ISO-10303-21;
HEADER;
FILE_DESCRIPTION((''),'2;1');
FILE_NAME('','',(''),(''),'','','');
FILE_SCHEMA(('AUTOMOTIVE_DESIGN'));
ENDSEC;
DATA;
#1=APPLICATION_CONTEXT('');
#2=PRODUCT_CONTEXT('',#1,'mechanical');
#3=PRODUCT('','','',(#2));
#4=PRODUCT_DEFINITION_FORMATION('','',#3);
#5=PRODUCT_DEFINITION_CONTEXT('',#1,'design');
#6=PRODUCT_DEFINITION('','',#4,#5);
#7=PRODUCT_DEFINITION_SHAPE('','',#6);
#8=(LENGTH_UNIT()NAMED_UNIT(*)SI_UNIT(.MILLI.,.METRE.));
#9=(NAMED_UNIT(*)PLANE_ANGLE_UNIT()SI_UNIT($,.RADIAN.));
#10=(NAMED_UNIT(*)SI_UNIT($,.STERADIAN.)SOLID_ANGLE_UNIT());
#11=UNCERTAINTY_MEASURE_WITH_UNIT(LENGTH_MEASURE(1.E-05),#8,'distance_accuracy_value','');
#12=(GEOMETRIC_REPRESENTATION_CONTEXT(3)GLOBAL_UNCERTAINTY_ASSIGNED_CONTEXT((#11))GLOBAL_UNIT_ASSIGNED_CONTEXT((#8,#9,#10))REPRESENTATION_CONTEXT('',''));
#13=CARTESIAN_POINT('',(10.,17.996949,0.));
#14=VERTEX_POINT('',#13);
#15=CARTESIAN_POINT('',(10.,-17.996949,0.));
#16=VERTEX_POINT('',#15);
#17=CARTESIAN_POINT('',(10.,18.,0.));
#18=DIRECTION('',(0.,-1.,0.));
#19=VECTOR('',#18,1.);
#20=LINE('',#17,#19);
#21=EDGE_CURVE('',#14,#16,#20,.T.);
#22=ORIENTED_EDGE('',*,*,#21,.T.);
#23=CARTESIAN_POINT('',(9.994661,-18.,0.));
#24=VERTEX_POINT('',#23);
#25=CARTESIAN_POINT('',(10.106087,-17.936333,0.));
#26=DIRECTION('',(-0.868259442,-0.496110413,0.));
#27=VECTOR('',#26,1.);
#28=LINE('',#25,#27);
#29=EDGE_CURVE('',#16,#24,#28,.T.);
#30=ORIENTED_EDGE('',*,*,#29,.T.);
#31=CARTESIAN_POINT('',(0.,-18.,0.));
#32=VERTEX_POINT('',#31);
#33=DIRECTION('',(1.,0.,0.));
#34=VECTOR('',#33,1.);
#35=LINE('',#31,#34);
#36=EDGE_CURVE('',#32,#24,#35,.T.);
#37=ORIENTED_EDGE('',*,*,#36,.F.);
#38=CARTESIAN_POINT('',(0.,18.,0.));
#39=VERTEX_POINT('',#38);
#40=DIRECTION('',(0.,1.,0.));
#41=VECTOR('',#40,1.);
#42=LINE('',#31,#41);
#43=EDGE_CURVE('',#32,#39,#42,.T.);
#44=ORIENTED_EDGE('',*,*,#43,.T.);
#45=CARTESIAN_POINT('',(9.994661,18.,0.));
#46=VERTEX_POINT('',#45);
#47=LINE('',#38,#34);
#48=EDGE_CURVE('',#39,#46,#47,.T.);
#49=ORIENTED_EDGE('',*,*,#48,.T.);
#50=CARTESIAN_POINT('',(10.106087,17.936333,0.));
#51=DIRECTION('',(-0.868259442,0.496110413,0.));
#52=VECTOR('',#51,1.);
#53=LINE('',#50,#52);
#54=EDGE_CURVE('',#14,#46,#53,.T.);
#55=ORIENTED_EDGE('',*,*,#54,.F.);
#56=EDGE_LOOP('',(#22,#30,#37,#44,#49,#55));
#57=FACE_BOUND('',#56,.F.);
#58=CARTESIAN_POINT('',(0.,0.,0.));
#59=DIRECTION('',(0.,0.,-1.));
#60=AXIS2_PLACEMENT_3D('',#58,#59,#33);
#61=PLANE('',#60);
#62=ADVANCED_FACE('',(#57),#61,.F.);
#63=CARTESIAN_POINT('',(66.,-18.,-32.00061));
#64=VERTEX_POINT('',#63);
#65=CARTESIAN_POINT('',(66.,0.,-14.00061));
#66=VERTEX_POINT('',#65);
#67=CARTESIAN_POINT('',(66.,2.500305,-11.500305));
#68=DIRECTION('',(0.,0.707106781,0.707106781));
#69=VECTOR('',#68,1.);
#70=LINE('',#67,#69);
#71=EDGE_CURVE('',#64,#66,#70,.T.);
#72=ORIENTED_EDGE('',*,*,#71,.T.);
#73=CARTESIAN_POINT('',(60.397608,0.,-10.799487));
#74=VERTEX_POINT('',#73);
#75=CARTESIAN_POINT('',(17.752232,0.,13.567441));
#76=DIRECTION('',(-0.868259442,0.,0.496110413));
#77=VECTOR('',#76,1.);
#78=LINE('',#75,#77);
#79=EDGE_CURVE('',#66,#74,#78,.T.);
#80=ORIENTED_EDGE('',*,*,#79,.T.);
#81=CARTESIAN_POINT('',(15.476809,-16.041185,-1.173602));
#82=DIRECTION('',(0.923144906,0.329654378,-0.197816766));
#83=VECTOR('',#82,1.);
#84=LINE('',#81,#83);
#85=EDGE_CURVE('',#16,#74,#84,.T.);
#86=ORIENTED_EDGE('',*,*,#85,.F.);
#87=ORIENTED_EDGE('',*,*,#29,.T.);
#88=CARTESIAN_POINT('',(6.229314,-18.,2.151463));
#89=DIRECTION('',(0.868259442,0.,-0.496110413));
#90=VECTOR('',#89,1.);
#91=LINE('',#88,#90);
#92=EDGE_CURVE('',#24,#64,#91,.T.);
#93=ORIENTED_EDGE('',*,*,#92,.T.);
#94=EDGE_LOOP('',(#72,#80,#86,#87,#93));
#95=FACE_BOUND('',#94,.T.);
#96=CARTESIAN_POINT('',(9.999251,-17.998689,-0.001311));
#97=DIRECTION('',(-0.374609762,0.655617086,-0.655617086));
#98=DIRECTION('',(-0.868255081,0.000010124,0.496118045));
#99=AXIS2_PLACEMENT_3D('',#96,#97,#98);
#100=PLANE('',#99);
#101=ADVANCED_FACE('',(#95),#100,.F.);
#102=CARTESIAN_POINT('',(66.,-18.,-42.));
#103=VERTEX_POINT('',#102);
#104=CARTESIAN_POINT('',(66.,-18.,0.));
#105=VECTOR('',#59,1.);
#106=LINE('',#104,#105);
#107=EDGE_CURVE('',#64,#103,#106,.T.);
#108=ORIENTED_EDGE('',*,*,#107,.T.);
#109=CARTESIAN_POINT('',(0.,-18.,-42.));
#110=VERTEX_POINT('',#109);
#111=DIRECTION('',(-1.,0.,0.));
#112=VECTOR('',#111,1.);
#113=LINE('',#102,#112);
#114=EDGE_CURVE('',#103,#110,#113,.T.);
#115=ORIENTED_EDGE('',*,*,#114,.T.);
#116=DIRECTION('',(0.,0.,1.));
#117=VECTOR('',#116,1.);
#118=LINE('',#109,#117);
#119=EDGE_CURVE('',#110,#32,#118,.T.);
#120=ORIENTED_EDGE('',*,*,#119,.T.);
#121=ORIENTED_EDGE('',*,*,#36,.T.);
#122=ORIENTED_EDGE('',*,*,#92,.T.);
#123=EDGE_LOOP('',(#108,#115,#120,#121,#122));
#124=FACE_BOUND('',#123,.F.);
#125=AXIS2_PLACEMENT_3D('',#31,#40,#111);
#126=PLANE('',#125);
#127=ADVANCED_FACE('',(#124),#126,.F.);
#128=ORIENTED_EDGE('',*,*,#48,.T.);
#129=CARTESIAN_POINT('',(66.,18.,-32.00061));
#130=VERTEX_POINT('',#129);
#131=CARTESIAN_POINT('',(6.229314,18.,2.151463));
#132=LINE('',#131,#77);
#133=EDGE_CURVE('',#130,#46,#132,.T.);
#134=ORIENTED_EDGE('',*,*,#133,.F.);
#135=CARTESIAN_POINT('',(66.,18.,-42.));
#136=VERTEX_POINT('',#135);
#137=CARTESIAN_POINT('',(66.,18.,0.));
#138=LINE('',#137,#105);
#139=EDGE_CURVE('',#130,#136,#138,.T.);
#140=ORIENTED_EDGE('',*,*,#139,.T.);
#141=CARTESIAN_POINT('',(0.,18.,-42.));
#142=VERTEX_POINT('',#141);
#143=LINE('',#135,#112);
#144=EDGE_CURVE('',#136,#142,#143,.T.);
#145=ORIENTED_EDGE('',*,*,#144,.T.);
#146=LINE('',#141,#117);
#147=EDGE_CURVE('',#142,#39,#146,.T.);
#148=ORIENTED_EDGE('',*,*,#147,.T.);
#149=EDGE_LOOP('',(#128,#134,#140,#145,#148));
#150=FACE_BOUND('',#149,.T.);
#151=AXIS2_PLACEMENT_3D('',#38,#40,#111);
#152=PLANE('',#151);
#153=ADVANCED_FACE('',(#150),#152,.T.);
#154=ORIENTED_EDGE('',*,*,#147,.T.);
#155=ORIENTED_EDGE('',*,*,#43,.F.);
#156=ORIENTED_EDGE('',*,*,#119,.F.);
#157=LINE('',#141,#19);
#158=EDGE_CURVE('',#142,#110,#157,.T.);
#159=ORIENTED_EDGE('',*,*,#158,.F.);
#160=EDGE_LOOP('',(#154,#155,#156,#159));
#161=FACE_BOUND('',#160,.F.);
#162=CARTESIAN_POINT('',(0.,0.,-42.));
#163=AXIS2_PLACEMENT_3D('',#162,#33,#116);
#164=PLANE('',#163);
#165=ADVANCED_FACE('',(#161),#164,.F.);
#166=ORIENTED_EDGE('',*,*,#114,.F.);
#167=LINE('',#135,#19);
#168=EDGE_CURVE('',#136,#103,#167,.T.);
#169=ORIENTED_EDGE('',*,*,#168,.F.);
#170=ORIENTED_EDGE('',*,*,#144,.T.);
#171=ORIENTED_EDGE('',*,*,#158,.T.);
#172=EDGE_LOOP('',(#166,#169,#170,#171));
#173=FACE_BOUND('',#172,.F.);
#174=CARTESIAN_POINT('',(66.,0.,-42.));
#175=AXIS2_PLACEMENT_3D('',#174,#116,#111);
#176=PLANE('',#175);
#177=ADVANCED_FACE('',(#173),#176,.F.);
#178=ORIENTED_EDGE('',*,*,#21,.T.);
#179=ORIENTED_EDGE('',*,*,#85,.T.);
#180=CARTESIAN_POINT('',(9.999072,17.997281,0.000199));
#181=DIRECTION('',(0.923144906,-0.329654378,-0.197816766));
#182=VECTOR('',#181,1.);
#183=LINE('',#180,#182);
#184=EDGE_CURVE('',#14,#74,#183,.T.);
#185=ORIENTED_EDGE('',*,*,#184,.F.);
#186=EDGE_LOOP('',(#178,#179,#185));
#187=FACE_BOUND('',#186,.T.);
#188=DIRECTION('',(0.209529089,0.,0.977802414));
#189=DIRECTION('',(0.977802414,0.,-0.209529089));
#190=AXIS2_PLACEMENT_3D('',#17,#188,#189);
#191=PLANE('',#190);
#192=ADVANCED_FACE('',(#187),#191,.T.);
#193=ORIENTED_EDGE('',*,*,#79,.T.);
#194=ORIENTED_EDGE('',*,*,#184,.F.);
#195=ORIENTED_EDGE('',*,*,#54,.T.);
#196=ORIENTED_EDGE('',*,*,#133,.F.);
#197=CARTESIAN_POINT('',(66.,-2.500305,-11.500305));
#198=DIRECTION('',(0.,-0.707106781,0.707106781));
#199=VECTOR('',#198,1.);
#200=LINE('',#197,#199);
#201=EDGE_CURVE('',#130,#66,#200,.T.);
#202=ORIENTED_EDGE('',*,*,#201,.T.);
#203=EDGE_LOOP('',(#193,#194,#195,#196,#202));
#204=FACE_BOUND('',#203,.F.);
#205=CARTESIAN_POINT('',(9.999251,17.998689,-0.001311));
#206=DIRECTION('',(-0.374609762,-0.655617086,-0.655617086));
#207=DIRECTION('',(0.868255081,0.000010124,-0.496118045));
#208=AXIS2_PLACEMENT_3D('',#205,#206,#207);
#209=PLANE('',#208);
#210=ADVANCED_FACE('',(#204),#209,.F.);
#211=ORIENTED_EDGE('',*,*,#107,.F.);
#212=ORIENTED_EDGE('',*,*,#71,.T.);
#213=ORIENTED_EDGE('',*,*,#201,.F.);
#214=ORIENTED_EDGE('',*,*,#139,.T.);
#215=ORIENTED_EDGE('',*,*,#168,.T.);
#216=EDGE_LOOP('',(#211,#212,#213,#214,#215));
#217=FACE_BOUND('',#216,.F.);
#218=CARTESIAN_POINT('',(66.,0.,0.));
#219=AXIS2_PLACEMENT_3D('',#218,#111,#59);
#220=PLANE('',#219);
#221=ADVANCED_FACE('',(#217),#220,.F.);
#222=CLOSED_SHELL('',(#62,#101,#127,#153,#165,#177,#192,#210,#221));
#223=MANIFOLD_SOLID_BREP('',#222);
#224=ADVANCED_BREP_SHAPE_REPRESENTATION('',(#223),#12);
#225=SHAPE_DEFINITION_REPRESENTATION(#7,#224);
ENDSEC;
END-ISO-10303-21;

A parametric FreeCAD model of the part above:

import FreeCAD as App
import Part
import Sketcher

V = App.Vector
Q = App.Units.Quantity

doc = App.newDocument("Part")
body = doc.addObject("PartDesign::Body", "Body")

sketch1 = body.newObject("Sketcher::SketchObject", "Sketch")
sketch1.AttachmentSupport = (doc.getObject("XZ_Plane"), [""])
sketch1.MapMode = "FlatFace"
sketch1.addGeometry(Part.LineSegment(V(0, -42, 0), V(0, 0, 0)), False)
sketch1.addGeometry(Part.LineSegment(V(0, 0, 0), V(66, 0, 0)), False)
sketch1.addGeometry(Part.LineSegment(V(66, 0, 0), V(66, -42, 0)), False)
sketch1.addGeometry(Part.LineSegment(V(66, -42, 0), V(0, -42, 0)), False)
sketch1.addConstraint(Sketcher.Constraint("Coincident", 0, 2, 1, 1))
sketch1.addConstraint(Sketcher.Constraint("Coincident", 1, 2, 2, 1))
sketch1.addConstraint(Sketcher.Constraint("Coincident", 2, 2, 3, 1))
sketch1.addConstraint(Sketcher.Constraint("Coincident", 3, 2, 0, 1))
sketch1.addConstraint(Sketcher.Constraint("Vertical", 0))
sketch1.addConstraint(Sketcher.Constraint("Horizontal", 1))
sketch1.addConstraint(Sketcher.Constraint("Vertical", 2))
sketch1.addConstraint(Sketcher.Constraint("Horizontal", 3))
sketch1.addConstraint(Sketcher.Constraint("Coincident", 0, 2, -1, 1))
sketch1.addConstraint(Sketcher.Constraint("DistanceX", 1, 1, 1, 2, Q("66 mm")))
sketch1.addConstraint(Sketcher.Constraint("DistanceY", 0, 1, 0, 2, Q("42 mm")))
pad1 = body.newObject("PartDesign::Pad", "Pad")
pad1.Profile = sketch1
pad1.Length = 36
pad1.Midplane = True

sketch2 = body.newObject("Sketcher::SketchObject", "Sketch001")
sketch2.AttachmentSupport = (doc.getObject("XZ_Plane"), [""])
sketch2.MapMode = "FlatFace"
sketch2.AttachmentOffset = App.Placement(V(0, 0, -18), App.Rotation())
sketch2.addGeometry(Part.LineSegment(V(66, -12, 0), V(10, 0, 0)), False)
sketch2.addGeometry(Part.LineSegment(V(10, 0, 0), V(66, 0, 0)), False)
sketch2.addGeometry(Part.LineSegment(V(66, 0, 0), V(66, -12, 0)), False)
sketch2.addConstraint(Sketcher.Constraint("Coincident", 0, 2, 1, 1))
sketch2.addConstraint(Sketcher.Constraint("Coincident", 1, 2, 2, 1))
sketch2.addConstraint(Sketcher.Constraint("Coincident", 2, 2, 0, 1))
sketch2.addConstraint(Sketcher.Constraint("Horizontal", 1))
sketch2.addConstraint(Sketcher.Constraint("Vertical", 2))
sketch2.addConstraint(Sketcher.Constraint("PointOnObject", 0, 2, -1))
sketch2.addConstraint(Sketcher.Constraint("DistanceX", -1, 1, 0, 2, Q("10 mm")))
sketch2.addConstraint(Sketcher.Constraint("DistanceX", 1, 1, 1, 2, Q("56 mm")))
sketch2.addConstraint(Sketcher.Constraint("DistanceY", 2, 2, 2, 1, Q("12 mm")))
pocket1 = body.newObject("PartDesign::Pocket", "Pocket")
pocket1.Profile = sketch2
pocket1.Length = 40
pocket1.Reversed = True

sketch3 = body.newObject("Sketcher::SketchObject", "Sketch002")
sketch3.Placement = App.Placement(V(10, 18, 0), App.Rotation(V(0.868255081, 0.000010124, -0.496118045), V(0.325270104, -0.755093529, 0.569239074), V(-0.374609762, -0.655617086, -0.655617086), "ZXY"))
sketch3.addGeometry(Part.LineSegment(V(-15, 29, 0), V(-15, -12, 0)), False)
sketch3.addGeometry(Part.LineSegment(V(-15, -12, 0), V(94, -12, 0)), False)
sketch3.addGeometry(Part.LineSegment(V(94, -12, 0), V(94, 29, 0)), False)
sketch3.addGeometry(Part.LineSegment(V(94, 29, 0), V(-15, 29, 0)), False)
sketch3.addConstraint(Sketcher.Constraint("Coincident", 0, 2, 1, 1))
sketch3.addConstraint(Sketcher.Constraint("Coincident", 1, 2, 2, 1))
sketch3.addConstraint(Sketcher.Constraint("Coincident", 2, 2, 3, 1))
sketch3.addConstraint(Sketcher.Constraint("Coincident", 3, 2, 0, 1))
sketch3.addConstraint(Sketcher.Constraint("Vertical", 0))
sketch3.addConstraint(Sketcher.Constraint("Horizontal", 1))
sketch3.addConstraint(Sketcher.Constraint("Vertical", 2))
sketch3.addConstraint(Sketcher.Constraint("Horizontal", 3))
sketch3.addConstraint(Sketcher.Constraint("DistanceX", 1, 1, 1, 2, Q("108.8713 mm")))
sketch3.addConstraint(Sketcher.Constraint("DistanceY", 0, 2, 0, 1, Q("41.1384 mm")))
sketch3.addConstraint(Sketcher.Constraint("DistanceX", -1, 1, 1, 2, Q("93.717 mm")))
sketch3.addConstraint(Sketcher.Constraint("DistanceY", 0, 2, -1, 1, Q("12.3218 mm")))
pocket2 = body.newObject("PartDesign::Pocket", "Pocket001")
pocket2.Profile = sketch3
pocket2.Length = 40
doc.recompute()

mirrored = body.newObject("PartDesign::Mirrored", "Mirrored")
mirrored.Originals = [pocket2]
mirrored.MirrorPlane = (doc.getObject("XZ_Plane"), [""])
body.Tip = mirrored

doc.recompute()
